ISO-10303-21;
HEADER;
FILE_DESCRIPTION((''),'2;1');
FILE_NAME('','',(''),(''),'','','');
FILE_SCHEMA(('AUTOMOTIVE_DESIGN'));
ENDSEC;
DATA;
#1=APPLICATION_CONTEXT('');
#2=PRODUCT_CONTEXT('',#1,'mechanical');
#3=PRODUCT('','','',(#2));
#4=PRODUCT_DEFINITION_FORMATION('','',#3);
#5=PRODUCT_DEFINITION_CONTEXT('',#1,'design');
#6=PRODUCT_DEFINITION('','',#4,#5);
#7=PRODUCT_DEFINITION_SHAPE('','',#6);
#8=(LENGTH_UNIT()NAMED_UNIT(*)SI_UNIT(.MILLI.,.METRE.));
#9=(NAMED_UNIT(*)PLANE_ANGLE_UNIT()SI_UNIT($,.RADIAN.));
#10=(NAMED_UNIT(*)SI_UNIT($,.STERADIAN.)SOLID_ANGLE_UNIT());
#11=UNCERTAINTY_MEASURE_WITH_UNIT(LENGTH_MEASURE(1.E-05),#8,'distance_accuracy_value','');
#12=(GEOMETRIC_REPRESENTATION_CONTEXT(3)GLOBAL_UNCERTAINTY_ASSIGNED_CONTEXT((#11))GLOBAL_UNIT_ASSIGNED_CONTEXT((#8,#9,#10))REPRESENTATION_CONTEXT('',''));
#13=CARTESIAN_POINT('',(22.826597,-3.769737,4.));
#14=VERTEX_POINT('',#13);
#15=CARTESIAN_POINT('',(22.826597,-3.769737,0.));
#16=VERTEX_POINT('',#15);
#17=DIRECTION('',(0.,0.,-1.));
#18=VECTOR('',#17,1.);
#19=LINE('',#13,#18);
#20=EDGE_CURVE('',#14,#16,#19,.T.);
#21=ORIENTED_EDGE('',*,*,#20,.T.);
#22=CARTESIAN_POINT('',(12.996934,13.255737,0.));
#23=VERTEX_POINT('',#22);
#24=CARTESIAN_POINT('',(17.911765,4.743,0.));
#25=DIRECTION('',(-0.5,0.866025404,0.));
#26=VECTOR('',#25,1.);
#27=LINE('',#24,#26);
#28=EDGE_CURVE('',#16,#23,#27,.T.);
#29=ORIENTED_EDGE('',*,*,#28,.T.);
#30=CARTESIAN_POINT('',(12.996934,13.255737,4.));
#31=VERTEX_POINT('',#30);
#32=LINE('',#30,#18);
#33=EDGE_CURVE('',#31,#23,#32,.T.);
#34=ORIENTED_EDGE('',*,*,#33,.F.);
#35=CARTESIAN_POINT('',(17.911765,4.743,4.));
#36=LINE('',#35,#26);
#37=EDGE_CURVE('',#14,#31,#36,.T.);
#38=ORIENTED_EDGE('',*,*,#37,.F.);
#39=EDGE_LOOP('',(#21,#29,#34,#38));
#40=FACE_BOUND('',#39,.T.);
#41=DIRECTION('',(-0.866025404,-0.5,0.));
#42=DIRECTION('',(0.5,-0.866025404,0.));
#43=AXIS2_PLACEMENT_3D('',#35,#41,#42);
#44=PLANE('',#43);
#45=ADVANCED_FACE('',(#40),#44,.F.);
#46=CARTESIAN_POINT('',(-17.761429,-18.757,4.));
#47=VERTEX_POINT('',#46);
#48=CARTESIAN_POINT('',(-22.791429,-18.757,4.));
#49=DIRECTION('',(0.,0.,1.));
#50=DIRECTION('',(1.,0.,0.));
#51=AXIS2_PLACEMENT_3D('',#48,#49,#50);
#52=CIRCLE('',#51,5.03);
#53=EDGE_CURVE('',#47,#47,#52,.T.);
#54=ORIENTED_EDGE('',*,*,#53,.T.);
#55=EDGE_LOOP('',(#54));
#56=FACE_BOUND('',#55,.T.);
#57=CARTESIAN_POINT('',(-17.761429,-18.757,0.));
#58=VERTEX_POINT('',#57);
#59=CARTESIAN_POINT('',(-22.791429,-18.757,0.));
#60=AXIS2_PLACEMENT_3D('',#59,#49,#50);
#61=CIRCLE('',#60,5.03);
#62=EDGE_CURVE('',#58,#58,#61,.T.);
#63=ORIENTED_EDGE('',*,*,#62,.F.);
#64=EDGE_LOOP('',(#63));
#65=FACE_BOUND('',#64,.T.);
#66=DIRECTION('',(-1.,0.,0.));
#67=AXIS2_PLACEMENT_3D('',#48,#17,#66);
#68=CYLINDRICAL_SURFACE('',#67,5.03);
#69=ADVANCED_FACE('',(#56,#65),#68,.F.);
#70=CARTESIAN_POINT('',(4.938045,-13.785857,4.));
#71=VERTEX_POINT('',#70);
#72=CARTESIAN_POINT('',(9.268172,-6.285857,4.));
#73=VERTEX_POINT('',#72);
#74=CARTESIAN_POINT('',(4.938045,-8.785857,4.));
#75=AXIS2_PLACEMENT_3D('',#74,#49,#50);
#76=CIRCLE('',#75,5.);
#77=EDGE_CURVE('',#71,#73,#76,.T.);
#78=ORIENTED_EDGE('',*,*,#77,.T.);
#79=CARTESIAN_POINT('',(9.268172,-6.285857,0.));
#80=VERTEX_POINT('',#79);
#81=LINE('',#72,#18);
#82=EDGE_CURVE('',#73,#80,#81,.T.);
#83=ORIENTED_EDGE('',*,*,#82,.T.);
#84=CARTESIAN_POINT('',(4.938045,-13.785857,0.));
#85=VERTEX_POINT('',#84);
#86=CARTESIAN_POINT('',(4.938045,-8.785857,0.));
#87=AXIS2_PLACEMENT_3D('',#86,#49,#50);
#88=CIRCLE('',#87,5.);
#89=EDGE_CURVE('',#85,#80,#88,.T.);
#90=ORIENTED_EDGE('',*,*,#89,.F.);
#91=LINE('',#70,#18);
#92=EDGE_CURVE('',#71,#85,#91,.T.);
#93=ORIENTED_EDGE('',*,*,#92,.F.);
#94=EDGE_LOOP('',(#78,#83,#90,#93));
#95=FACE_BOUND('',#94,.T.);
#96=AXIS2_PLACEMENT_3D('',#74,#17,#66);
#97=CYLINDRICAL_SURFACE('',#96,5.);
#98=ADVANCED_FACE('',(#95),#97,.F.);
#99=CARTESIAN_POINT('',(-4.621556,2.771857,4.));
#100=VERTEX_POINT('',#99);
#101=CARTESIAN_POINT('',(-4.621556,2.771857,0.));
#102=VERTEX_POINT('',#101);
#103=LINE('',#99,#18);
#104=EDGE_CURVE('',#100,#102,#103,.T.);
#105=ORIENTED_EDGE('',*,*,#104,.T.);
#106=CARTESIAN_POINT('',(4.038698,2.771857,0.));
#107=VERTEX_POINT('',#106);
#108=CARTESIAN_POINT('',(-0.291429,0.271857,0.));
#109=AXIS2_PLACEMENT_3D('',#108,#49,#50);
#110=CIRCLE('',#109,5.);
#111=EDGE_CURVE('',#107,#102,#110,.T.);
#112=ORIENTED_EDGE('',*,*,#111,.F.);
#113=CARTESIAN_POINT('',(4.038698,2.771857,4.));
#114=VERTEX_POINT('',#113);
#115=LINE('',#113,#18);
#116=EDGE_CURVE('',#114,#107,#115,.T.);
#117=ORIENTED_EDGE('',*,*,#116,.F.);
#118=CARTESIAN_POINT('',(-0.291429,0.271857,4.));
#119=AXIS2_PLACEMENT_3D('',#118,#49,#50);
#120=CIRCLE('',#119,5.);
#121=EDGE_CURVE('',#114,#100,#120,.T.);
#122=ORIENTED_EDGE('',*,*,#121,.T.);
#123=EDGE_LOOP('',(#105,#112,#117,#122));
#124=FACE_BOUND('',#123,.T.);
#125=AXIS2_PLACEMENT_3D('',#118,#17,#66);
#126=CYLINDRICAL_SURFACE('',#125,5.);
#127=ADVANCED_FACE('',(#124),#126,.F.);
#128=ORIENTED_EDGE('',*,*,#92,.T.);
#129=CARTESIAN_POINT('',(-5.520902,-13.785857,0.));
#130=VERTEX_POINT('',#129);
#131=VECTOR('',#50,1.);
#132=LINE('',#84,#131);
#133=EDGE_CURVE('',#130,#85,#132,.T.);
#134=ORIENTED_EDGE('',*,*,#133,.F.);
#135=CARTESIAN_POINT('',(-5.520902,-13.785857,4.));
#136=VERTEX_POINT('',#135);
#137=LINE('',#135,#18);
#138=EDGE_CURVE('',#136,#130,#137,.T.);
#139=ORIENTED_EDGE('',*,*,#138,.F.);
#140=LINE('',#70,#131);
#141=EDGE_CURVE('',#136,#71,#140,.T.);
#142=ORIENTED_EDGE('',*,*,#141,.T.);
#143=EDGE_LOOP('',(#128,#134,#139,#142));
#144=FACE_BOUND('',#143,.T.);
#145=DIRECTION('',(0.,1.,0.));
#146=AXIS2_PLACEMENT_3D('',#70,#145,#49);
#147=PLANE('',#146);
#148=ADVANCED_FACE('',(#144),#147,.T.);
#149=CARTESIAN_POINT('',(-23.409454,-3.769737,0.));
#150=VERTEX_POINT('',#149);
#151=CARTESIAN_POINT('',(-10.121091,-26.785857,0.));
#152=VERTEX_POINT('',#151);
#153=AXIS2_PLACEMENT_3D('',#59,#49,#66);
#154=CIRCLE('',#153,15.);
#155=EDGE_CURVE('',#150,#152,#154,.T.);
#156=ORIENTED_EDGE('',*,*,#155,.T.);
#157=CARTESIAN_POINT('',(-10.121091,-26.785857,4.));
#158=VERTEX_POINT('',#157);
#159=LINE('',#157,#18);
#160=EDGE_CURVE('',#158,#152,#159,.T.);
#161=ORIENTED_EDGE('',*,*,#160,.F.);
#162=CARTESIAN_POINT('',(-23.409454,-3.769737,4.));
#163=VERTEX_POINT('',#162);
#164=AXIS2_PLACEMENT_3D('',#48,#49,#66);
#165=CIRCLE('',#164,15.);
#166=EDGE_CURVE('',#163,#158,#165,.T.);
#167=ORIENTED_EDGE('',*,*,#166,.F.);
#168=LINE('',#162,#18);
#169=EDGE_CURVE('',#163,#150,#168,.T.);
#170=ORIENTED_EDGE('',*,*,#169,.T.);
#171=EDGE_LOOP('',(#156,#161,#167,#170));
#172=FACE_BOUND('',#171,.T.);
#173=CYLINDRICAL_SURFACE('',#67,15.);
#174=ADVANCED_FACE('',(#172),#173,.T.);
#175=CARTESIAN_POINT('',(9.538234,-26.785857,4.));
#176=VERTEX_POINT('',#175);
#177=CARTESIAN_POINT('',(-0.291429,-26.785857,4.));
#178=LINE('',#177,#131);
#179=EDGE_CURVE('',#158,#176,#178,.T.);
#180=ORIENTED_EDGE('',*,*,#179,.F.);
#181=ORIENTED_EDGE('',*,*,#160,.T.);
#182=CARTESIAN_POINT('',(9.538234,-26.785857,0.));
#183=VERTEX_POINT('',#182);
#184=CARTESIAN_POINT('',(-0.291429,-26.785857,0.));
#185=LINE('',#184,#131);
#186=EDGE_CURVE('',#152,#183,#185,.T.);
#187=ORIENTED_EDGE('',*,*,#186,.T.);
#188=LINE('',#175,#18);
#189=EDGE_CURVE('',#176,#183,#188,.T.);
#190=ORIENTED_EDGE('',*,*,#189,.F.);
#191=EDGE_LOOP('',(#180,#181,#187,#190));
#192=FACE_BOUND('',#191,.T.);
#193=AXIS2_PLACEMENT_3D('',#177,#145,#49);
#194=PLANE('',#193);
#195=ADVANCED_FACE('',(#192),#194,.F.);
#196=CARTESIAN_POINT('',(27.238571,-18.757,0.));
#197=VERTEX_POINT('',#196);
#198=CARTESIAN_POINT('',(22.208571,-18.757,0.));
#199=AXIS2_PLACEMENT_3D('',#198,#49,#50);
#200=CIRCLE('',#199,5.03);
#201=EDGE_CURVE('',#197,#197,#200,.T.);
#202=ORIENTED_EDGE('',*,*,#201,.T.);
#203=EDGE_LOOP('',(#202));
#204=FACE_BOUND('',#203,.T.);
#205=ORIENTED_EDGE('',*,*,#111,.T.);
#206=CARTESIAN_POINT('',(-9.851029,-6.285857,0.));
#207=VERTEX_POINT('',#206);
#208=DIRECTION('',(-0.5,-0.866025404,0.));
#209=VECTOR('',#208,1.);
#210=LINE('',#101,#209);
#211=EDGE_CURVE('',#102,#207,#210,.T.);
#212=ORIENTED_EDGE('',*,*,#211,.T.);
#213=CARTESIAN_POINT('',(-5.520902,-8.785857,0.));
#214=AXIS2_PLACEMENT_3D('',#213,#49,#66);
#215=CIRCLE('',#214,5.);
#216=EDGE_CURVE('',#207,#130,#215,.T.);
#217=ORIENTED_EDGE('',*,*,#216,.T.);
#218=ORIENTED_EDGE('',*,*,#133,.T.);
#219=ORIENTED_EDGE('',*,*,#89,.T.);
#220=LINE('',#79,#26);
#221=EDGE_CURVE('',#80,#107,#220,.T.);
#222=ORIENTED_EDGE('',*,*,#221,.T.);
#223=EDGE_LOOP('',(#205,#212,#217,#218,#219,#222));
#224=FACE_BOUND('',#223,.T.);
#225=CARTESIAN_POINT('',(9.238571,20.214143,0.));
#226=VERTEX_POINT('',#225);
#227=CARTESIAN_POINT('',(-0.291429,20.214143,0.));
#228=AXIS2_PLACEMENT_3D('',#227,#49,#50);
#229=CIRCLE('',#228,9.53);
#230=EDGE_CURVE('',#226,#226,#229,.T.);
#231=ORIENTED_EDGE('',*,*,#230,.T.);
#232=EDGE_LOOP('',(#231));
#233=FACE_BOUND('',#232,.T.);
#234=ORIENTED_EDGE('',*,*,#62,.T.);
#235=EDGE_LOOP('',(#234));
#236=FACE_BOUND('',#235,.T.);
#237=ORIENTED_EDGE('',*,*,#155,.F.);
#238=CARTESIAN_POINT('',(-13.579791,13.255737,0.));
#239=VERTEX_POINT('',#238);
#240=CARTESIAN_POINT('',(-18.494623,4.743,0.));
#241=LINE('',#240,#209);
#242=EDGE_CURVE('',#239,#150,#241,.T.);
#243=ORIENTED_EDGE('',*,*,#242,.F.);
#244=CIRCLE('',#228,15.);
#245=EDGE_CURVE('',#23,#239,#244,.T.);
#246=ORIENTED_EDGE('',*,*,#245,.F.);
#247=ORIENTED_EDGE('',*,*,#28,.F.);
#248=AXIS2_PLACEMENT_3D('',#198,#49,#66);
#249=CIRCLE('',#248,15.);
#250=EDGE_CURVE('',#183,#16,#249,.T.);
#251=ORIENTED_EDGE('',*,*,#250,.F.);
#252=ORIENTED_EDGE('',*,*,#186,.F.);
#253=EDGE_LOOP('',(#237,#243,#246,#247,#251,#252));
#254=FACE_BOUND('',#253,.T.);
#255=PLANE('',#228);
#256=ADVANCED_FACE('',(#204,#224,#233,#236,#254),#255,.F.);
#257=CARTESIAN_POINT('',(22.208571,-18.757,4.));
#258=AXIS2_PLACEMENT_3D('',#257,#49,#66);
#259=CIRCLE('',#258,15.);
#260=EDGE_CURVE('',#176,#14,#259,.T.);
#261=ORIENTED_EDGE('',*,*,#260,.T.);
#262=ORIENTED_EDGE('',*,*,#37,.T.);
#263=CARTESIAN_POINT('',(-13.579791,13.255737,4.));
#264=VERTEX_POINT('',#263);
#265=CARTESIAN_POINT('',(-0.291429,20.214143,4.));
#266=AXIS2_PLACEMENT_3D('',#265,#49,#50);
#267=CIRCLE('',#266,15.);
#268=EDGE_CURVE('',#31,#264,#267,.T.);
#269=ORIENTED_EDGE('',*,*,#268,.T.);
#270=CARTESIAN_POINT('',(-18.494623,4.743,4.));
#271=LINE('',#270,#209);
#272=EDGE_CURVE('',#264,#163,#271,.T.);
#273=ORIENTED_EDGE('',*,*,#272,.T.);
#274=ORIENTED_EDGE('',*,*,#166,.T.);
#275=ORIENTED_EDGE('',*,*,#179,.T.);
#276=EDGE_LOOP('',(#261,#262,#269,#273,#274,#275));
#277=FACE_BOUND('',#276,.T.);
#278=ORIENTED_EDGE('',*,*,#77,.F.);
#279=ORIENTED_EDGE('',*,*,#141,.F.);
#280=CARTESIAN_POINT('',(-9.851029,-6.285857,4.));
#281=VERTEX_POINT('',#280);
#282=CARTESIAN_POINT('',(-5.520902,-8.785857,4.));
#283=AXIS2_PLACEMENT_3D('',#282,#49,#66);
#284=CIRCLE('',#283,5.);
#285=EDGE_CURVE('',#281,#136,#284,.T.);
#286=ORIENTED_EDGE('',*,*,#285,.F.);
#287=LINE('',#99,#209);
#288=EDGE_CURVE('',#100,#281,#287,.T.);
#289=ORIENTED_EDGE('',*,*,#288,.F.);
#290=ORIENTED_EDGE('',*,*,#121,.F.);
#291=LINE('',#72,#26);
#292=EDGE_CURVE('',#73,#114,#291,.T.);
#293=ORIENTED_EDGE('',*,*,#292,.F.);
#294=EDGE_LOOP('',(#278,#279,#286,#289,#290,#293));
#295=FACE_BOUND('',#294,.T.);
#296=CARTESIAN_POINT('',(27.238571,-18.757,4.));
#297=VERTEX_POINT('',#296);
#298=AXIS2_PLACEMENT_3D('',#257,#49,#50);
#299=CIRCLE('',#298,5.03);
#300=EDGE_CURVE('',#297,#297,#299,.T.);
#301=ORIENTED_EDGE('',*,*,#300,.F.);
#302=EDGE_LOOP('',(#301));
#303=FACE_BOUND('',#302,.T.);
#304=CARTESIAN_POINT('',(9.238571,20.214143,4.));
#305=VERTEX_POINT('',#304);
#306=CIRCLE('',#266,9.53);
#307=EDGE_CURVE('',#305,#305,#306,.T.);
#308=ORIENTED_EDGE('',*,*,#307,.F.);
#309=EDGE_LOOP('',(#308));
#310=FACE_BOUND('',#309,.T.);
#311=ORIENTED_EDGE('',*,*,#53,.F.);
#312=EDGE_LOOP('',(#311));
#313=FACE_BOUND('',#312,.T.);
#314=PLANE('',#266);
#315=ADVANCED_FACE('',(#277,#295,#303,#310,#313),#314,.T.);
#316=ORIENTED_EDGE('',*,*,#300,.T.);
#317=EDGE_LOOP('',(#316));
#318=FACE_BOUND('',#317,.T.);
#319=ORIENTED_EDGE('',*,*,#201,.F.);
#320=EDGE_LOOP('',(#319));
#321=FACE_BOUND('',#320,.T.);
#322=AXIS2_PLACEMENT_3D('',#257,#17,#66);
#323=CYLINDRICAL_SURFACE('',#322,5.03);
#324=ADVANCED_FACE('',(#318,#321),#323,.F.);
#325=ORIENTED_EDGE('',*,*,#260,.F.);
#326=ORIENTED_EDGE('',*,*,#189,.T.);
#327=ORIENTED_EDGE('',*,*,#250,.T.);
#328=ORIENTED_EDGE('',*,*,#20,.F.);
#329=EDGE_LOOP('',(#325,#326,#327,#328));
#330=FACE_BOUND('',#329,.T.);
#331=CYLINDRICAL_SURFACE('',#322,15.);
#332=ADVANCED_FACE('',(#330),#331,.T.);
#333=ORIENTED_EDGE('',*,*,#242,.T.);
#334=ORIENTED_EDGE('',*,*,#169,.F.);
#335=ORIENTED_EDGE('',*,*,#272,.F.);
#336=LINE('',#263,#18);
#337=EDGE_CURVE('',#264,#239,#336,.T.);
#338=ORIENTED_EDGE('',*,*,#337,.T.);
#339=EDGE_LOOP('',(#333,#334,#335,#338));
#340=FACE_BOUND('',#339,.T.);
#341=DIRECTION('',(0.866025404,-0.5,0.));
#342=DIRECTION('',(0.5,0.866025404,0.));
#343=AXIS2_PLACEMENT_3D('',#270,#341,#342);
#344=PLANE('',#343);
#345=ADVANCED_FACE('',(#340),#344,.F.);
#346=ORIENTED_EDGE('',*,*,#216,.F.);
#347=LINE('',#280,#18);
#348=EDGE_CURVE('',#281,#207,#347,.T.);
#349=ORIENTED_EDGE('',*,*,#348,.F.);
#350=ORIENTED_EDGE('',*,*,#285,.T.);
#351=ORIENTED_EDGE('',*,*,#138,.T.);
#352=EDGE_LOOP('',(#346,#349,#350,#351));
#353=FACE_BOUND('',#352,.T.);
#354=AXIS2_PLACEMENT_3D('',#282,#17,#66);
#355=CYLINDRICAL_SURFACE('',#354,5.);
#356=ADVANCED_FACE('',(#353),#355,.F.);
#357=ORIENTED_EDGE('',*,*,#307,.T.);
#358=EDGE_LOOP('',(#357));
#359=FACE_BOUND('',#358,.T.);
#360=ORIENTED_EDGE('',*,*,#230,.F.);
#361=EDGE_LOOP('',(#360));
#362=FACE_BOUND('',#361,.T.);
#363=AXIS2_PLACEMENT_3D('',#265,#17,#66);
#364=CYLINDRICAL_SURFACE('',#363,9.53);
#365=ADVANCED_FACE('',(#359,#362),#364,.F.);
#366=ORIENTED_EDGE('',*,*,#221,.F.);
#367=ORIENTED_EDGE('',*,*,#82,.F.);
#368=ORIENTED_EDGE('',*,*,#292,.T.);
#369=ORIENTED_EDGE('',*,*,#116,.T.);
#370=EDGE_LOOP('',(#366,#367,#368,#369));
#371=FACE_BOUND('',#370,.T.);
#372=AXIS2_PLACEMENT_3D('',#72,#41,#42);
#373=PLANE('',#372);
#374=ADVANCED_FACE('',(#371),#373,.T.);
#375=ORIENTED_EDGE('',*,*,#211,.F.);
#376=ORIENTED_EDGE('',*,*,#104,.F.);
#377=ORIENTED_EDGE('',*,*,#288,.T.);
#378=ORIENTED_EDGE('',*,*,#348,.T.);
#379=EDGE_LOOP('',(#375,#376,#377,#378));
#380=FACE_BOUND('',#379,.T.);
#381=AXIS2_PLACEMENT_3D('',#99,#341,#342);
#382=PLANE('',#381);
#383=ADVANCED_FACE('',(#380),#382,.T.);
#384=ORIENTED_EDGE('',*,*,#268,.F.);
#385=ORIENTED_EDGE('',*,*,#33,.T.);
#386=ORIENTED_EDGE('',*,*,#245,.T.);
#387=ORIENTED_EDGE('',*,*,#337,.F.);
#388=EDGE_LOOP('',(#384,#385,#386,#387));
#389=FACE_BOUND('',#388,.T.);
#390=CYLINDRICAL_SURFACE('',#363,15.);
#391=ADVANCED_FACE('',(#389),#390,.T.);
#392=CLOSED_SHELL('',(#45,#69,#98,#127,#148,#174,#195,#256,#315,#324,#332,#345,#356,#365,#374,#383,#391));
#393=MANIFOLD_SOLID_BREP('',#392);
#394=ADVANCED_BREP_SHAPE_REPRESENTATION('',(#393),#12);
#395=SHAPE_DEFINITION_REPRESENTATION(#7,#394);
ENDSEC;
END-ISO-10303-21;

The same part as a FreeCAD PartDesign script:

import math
import FreeCAD as App
import Part
import Sketcher

V = App.Vector
Q = App.Units.Quantity

doc = App.newDocument("Part")
body = doc.addObject("PartDesign::Body", "Body")

# Sketch on XY plane
sketch1 = doc.addObject("Sketcher::SketchObject", "Sketch")
body.addObject(sketch1)
sketch1.AttachmentSupport = (doc.XY_Plane, [""])
sketch1.MapMode = "FlatFace"
sketch1.addGeometry(Part.LineSegment(V(-18.5, 4.7, 0), V(-23.4, -3.8, 0)), False)
sketch1.addGeometry(Part.ArcOfCircle(Part.Circle(V(-22.8, -18.8, 0), V(0, 0, 1), 15), math.radians(92), math.radians(328)), False)
sketch1.addGeometry(Part.LineSegment(V(-10.1, -26.8, 0), V(9.5, -26.8, 0)), False)
sketch1.addGeometry(Part.ArcOfCircle(Part.Circle(V(22.2, -18.8, 0), V(0, 0, 1), 15), math.radians(-148), math.radians(88)), False)
sketch1.addGeometry(Part.LineSegment(V(22.8, -3.8, 0), V(17.9, 4.7, 0)), False)
sketch1.addGeometry(Part.LineSegment(V(17.9, 4.7, 0), V(13, 13.3, 0)), False)
sketch1.addGeometry(Part.ArcOfCircle(Part.Circle(V(-0.3, 20.2, 0), V(0, 0, 1), 15), math.radians(-28), math.radians(208)), False)
sketch1.addGeometry(Part.LineSegment(V(-13.6, 13.3, 0), V(-18.5, 4.7, 0)), False)
sketch1.addGeometry(Part.Circle(V(-22.8, -18.8, 0), V(0, 0, 1), 5), False)
sketch1.addGeometry(Part.LineSegment(V(4, 2.8, 0), V(9.3, -6.3, 0)), False)
sketch1.addGeometry(Part.ArcOfCircle(Part.Circle(V(4.9, -8.8, 0), V(0, 0, 1), 5), math.radians(-90), math.radians(30)), False)
sketch1.addGeometry(Part.LineSegment(V(4.9, -13.8, 0), V(-5.5, -13.8, 0)), False)
sketch1.addGeometry(Part.ArcOfCircle(Part.Circle(V(-5.5, -8.8, 0), V(0, 0, 1), 5), math.radians(150), math.radians(270)), False)
sketch1.addGeometry(Part.LineSegment(V(-9.9, -6.3, 0), V(-4.6, 2.8, 0)), False)
sketch1.addGeometry(Part.ArcOfCircle(Part.Circle(V(-0.3, 0.3, 0), V(0, 0, 1), 5), math.radians(30), math.radians(150)), False)
sketch1.addGeometry(Part.Circle(V(22.2, -18.8, 0), V(0, 0, 1), 5), False)
sketch1.addGeometry(Part.Circle(V(-0.3, 20.2, 0), V(0, 0, 1), 9.5), False)
sketch1.addConstraint(Sketcher.Constraint("Coincident", 0, 2, 1, 1))
sketch1.addConstraint(Sketcher.Constraint("Coincident", 1, 2, 2, 1))
sketch1.addConstraint(Sketcher.Constraint("Coincident", 2, 2, 3, 1))
sketch1.addConstraint(Sketcher.Constraint("Coincident", 3, 2, 4, 1))
sketch1.addConstraint(Sketcher.Constraint("Coincident", 4, 2, 5, 1))
sketch1.addConstraint(Sketcher.Constraint("Coincident", 5, 2, 6, 1))
sketch1.addConstraint(Sketcher.Constraint("Coincident", 6, 2, 7, 1))
sketch1.addConstraint(Sketcher.Constraint("Coincident", 7, 2, 0, 1))
sketch1.addConstraint(Sketcher.Constraint("Tangent", 9, 2, 10, 2))
sketch1.addConstraint(Sketcher.Constraint("Tangent", 10, 1, 11, 1))
sketch1.addConstraint(Sketcher.Constraint("Tangent", 11, 2, 12, 2))
sketch1.addConstraint(Sketcher.Constraint("Tangent", 12, 1, 13, 1))
sketch1.addConstraint(Sketcher.Constraint("Tangent", 13, 2, 14, 2))
sketch1.addConstraint(Sketcher.Constraint("Tangent", 14, 1, 9, 1))
sketch1.addConstraint(Sketcher.Constraint("Horizontal", 2))
sketch1.addConstraint(Sketcher.Constraint("Horizontal", 11))
sketch1.addConstraint(Sketcher.Constraint("Coincident", 8, 3, 1, 3))
sketch1.addConstraint(Sketcher.Constraint("Coincident", 15, 3, 3, 3))
sketch1.addConstraint(Sketcher.Constraint("Coincident", 16, 3, 6, 3))
sketch1.addConstraint(Sketcher.Constraint("Equal", 1, 3))
sketch1.addConstraint(Sketcher.Constraint("Equal", 3, 6))
sketch1.addConstraint(Sketcher.Constraint("Equal", 10, 12))
sketch1.addConstraint(Sketcher.Constraint("Equal", 12, 14))
sketch1.addConstraint(Sketcher.Constraint("Equal", 8, 15))
sketch1.addConstraint(Sketcher.Constraint("Parallel", 4, 5))
sketch1.addConstraint(Sketcher.Constraint("Parallel", 0, 7))
sketch1.addConstraint(Sketcher.Constraint("Parallel", 5, 9))
sketch1.addConstraint(Sketcher.Constraint("Parallel", 7, 13))
sketch1.addConstraint(Sketcher.Constraint("Horizontal", 1, 3, 3, 3))
sketch1.addConstraint(Sketcher.Constraint("Horizontal", 0, 2, 3, 2))
sketch1.addConstraint(Sketcher.Constraint("Horizontal", 5, 2, 6, 2))
sketch1.addConstraint(Sketcher.Constraint("Horizontal", 4, 2, 7, 2))
sketch1.addConstraint(Sketcher.Constraint("Horizontal", 9, 2, 12, 1))
sketch1.addConstraint(Sketcher.Constraint("Vertical", 6, 3, 14, 3))
sketch1.addConstraint(Sketcher.Constraint("Equal", 4, 5))
sketch1.addConstraint(Sketcher.Constraint("Radius", 1, Q("15 mm")))
sketch1.addConstraint(Sketcher.Constraint("Radius", 10, Q("5 mm")))
sketch1.addConstraint(Sketcher.Constraint("Diameter", 8, Q("10.06 mm")))
sketch1.addConstraint(Sketcher.Constraint("Diameter", 16, Q("19.06 mm")))
sketch1.addConstraint(Sketcher.Constraint("Angle", 0, Q("-120 deg")))
sketch1.addConstraint(Sketcher.Constraint("DistanceX", 1, 3, 3, 3, Q("45 mm")))
sketch1.addConstraint(Sketcher.Constraint("DistanceY", 10, 3, 6, 3, Q("29 mm")))
sketch1.addConstraint(Sketcher.Constraint("DistanceY", 1, 2, 12, 3, Q("18 mm")))
sketch1.addConstraint(Sketcher.Constraint("DistanceY", 3, 3, 4, 2, Q("23.5 mm")))
sketch1.addConstraint(Sketcher.Constraint("DistanceY", 1, 3, -1, 1, Q("18.757 mm")))
sketch1.addConstraint(Sketcher.Constraint("DistanceX", 12, 3, -1, 1, Q("5.520902 mm")))
sketch1.addConstraint(Sketcher.Constraint("DistanceX", -1, 1, 14, 1, Q("4.038698 mm")))
sketch1.addConstraint(Sketcher.Constraint("DistanceX", 0, 2, 10, 3, Q("28.347499 mm")))
pad1 = doc.addObject("PartDesign::Pad", "Pad")
body.addObject(pad1)
pad1.Profile = sketch1
pad1.Length = 4

doc.recompute()
